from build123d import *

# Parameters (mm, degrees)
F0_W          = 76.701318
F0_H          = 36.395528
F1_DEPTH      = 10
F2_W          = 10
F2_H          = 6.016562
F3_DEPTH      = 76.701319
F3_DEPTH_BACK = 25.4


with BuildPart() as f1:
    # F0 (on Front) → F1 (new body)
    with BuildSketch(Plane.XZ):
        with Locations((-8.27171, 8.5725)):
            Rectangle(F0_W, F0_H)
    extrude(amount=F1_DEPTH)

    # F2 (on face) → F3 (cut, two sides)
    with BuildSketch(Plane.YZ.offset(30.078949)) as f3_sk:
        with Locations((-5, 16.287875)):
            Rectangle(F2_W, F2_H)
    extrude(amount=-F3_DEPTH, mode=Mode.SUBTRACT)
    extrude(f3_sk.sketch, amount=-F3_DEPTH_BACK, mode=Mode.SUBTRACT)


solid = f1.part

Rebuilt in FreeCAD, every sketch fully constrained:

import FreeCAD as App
import Part
import Sketcher

V = App.Vector
Q = App.Units.Quantity


def add_polygon(sketch, points):
    """Adds a closed chain of lines whose ends are joined by coincident constraints."""
    first, n = sketch.GeometryCount, len(points)
    for a, b in zip(points, points[1:] + points[:1]):
        sketch.addGeometry(Part.LineSegment(App.Vector(*a, 0), App.Vector(*b, 0)), False)
    for i in range(n):
        sketch.addConstraint(Sketcher.Constraint("Coincident", first + i, 2, first + (i + 1) % n, 1))

doc = App.newDocument("Part")
body = doc.addObject("PartDesign::Body", "Body")
body.AllowCompound = True

sketch1 = doc.addObject("Sketcher::SketchObject", "Sketch")
body.addObject(sketch1)
sketch1.AttachmentSupport = (doc.XZ_Plane, [""])
sketch1.MapMode = "FlatFace"
add_polygon(sketch1, [(-46.622369, 26.770264), (-46.622369, -9.625264), (30.078949, -9.625264), (30.078949, 26.770264)])
sketch1.addConstraint([
    Sketcher.Constraint("Vertical", 0),
    Sketcher.Constraint("Horizontal", 1),
    Sketcher.Constraint("Vertical", 2),
    Sketcher.Constraint("Horizontal", 3),
    Sketcher.Constraint("DistanceX", 1, 1, 1, 2, Q("76.701318 mm")),
    Sketcher.Constraint("DistanceY", 0, 2, 0, 1, Q("36.395528 mm")),
    Sketcher.Constraint("DistanceX", 0, 2, -1, 1, Q("46.622369 mm")),
    Sketcher.Constraint("DistanceY", 0, 2, -1, 1, Q("9.625264 mm")),
])
pad1 = doc.addObject("PartDesign::Pad", "Pad")
body.addObject(pad1)
pad1.Profile = sketch1
pad1.Length = 10

sketch2 = doc.addObject("Sketcher::SketchObject", "Sketch001")
body.addObject(sketch2)
sketch2.AttachmentSupport = (doc.YZ_Plane, [""])
sketch2.MapMode = "FlatFace"
sketch2.AttachmentOffset = App.Placement(V(0, 0, 30.078949), App.Rotation())
add_polygon(sketch2, [(-10, 19.296156), (-10, 13.279594), (0, 13.279594), (0, 19.296156)])
sketch2.addConstraint([
    Sketcher.Constraint("Vertical", 0),
    Sketcher.Constraint("Horizontal", 1),
    Sketcher.Constraint("Vertical", 2),
    Sketcher.Constraint("Horizontal", 3),
    Sketcher.Constraint("PointOnObject", 1, 2, -2),
    Sketcher.Constraint("DistanceX", 1, 1, 1, 2, Q("10 mm")),
    Sketcher.Constraint("DistanceY", 0, 2, 0, 1, Q("6.016562 mm")),
    Sketcher.Constraint("DistanceY", -1, 1, 0, 2, Q("13.279594 mm")),
])
pocket1 = doc.addObject("PartDesign::Pocket", "Pocket")
body.addObject(pocket1)
pocket1.Profile = sketch2
pocket1.Length = 76.701319
pocket2 = doc.addObject("PartDesign::Pocket", "Pocket001")
body.addObject(pocket2)
pocket2.Profile = sketch2
pocket2.Length = 25.4

doc.recompute()
